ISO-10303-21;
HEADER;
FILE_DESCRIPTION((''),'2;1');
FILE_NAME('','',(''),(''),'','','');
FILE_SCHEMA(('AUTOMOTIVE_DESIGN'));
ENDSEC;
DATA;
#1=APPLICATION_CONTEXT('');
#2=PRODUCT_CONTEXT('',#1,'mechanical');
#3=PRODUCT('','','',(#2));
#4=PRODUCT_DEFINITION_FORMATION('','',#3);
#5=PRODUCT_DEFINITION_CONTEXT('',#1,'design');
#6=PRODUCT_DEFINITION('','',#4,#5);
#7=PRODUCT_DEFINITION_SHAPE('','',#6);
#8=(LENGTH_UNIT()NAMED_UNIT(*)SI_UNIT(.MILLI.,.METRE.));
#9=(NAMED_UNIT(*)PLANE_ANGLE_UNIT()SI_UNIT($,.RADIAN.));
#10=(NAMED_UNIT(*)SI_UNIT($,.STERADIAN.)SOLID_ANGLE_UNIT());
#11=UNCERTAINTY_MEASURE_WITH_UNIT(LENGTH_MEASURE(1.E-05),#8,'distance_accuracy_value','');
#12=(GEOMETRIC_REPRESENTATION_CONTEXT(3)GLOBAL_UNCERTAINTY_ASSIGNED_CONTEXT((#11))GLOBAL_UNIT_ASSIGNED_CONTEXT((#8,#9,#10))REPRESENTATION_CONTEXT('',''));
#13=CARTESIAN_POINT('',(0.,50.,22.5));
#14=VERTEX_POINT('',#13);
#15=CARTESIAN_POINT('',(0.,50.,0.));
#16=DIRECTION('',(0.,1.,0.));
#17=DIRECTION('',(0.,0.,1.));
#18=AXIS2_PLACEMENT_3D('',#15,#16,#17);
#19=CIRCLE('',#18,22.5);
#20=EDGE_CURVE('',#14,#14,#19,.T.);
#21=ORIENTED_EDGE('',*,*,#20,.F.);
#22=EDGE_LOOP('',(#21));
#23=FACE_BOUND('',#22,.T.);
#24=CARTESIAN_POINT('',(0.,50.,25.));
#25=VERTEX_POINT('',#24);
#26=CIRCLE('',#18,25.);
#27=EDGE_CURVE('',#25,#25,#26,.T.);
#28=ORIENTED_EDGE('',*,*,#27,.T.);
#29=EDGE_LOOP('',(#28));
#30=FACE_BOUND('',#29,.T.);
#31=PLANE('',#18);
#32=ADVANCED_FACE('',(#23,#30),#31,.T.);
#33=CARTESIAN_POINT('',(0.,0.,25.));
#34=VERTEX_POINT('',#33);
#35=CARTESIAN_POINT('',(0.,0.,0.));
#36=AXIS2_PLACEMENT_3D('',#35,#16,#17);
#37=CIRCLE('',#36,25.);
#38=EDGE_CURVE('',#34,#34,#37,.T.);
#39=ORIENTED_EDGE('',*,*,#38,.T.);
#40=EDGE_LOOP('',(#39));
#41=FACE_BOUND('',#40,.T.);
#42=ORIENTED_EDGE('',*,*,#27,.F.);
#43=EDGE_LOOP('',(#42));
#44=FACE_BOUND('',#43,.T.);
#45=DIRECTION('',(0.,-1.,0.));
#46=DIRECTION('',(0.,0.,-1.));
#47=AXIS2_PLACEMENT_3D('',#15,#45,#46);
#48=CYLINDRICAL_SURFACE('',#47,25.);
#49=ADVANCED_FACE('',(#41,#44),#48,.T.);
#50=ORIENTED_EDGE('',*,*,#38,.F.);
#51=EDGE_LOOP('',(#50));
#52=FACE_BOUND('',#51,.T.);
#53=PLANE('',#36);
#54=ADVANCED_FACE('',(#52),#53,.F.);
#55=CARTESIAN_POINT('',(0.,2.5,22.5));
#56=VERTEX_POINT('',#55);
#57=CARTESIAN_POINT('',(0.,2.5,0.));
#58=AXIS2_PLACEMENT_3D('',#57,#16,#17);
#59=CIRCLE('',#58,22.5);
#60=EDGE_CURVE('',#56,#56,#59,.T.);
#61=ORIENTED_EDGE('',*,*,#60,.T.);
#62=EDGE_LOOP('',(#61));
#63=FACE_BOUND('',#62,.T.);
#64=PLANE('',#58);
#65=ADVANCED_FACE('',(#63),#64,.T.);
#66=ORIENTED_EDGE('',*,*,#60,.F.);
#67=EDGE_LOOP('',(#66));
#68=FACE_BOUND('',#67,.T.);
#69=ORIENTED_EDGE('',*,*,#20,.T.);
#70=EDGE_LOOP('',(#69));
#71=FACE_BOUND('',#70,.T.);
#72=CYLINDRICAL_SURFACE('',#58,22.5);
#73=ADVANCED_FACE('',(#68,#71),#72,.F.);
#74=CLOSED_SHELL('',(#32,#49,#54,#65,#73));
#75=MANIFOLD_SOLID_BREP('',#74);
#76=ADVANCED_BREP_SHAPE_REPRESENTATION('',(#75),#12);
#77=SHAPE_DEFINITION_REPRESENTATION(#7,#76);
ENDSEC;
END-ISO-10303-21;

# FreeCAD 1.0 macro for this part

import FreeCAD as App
import Part
import Sketcher
Q = App.Units.Quantity

doc = App.newDocument("Part")
body = doc.addObject("PartDesign::Body", "Body")

# Sketch on XZ plane
sketch1 = body.newObject("Sketcher::SketchObject", "Sketch")
sketch1.AttachmentSupport = (doc.getObject("XZ_Plane"), [""])
sketch1.MapMode = "FlatFace"
sketch1.addGeometry(Part.Circle(App.Vector(0, 0, 0), App.Vector(0, 0, 1), 25), False)
sketch1.addConstraint(Sketcher.Constraint("Coincident", 0, 3, -1, 1))
sketch1.addConstraint(Sketcher.Constraint("Diameter", 0, Q("50 mm")))
pad1 = body.newObject("PartDesign::Pad", "Pad")
pad1.Profile = sketch1
pad1.Length = 50
pad1.Reversed = True

# Sketch on XZ plane
sketch2 = body.newObject("Sketcher::SketchObject", "Sketch001")
sketch2.AttachmentSupport = (doc.getObject("XZ_Plane"), [""])
sketch2.MapMode = "FlatFace"
sketch2.AttachmentOffset = App.Placement(App.Vector(0, 0, -50), App.Rotation())
sketch2.addGeometry(Part.Circle(App.Vector(0, 0, 0), App.Vector(0, 0, 1), 22), False)
sketch2.addConstraint(Sketcher.Constraint("Coincident", 0, 3, -1, 1))
sketch2.addConstraint(Sketcher.Constraint("Diameter", 0, Q("45 mm")))
pocket1 = body.newObject("PartDesign::Pocket", "Pocket")
pocket1.Profile = sketch2
pocket1.Length = 47.5
pocket1.Reversed = True

doc.recompute()
